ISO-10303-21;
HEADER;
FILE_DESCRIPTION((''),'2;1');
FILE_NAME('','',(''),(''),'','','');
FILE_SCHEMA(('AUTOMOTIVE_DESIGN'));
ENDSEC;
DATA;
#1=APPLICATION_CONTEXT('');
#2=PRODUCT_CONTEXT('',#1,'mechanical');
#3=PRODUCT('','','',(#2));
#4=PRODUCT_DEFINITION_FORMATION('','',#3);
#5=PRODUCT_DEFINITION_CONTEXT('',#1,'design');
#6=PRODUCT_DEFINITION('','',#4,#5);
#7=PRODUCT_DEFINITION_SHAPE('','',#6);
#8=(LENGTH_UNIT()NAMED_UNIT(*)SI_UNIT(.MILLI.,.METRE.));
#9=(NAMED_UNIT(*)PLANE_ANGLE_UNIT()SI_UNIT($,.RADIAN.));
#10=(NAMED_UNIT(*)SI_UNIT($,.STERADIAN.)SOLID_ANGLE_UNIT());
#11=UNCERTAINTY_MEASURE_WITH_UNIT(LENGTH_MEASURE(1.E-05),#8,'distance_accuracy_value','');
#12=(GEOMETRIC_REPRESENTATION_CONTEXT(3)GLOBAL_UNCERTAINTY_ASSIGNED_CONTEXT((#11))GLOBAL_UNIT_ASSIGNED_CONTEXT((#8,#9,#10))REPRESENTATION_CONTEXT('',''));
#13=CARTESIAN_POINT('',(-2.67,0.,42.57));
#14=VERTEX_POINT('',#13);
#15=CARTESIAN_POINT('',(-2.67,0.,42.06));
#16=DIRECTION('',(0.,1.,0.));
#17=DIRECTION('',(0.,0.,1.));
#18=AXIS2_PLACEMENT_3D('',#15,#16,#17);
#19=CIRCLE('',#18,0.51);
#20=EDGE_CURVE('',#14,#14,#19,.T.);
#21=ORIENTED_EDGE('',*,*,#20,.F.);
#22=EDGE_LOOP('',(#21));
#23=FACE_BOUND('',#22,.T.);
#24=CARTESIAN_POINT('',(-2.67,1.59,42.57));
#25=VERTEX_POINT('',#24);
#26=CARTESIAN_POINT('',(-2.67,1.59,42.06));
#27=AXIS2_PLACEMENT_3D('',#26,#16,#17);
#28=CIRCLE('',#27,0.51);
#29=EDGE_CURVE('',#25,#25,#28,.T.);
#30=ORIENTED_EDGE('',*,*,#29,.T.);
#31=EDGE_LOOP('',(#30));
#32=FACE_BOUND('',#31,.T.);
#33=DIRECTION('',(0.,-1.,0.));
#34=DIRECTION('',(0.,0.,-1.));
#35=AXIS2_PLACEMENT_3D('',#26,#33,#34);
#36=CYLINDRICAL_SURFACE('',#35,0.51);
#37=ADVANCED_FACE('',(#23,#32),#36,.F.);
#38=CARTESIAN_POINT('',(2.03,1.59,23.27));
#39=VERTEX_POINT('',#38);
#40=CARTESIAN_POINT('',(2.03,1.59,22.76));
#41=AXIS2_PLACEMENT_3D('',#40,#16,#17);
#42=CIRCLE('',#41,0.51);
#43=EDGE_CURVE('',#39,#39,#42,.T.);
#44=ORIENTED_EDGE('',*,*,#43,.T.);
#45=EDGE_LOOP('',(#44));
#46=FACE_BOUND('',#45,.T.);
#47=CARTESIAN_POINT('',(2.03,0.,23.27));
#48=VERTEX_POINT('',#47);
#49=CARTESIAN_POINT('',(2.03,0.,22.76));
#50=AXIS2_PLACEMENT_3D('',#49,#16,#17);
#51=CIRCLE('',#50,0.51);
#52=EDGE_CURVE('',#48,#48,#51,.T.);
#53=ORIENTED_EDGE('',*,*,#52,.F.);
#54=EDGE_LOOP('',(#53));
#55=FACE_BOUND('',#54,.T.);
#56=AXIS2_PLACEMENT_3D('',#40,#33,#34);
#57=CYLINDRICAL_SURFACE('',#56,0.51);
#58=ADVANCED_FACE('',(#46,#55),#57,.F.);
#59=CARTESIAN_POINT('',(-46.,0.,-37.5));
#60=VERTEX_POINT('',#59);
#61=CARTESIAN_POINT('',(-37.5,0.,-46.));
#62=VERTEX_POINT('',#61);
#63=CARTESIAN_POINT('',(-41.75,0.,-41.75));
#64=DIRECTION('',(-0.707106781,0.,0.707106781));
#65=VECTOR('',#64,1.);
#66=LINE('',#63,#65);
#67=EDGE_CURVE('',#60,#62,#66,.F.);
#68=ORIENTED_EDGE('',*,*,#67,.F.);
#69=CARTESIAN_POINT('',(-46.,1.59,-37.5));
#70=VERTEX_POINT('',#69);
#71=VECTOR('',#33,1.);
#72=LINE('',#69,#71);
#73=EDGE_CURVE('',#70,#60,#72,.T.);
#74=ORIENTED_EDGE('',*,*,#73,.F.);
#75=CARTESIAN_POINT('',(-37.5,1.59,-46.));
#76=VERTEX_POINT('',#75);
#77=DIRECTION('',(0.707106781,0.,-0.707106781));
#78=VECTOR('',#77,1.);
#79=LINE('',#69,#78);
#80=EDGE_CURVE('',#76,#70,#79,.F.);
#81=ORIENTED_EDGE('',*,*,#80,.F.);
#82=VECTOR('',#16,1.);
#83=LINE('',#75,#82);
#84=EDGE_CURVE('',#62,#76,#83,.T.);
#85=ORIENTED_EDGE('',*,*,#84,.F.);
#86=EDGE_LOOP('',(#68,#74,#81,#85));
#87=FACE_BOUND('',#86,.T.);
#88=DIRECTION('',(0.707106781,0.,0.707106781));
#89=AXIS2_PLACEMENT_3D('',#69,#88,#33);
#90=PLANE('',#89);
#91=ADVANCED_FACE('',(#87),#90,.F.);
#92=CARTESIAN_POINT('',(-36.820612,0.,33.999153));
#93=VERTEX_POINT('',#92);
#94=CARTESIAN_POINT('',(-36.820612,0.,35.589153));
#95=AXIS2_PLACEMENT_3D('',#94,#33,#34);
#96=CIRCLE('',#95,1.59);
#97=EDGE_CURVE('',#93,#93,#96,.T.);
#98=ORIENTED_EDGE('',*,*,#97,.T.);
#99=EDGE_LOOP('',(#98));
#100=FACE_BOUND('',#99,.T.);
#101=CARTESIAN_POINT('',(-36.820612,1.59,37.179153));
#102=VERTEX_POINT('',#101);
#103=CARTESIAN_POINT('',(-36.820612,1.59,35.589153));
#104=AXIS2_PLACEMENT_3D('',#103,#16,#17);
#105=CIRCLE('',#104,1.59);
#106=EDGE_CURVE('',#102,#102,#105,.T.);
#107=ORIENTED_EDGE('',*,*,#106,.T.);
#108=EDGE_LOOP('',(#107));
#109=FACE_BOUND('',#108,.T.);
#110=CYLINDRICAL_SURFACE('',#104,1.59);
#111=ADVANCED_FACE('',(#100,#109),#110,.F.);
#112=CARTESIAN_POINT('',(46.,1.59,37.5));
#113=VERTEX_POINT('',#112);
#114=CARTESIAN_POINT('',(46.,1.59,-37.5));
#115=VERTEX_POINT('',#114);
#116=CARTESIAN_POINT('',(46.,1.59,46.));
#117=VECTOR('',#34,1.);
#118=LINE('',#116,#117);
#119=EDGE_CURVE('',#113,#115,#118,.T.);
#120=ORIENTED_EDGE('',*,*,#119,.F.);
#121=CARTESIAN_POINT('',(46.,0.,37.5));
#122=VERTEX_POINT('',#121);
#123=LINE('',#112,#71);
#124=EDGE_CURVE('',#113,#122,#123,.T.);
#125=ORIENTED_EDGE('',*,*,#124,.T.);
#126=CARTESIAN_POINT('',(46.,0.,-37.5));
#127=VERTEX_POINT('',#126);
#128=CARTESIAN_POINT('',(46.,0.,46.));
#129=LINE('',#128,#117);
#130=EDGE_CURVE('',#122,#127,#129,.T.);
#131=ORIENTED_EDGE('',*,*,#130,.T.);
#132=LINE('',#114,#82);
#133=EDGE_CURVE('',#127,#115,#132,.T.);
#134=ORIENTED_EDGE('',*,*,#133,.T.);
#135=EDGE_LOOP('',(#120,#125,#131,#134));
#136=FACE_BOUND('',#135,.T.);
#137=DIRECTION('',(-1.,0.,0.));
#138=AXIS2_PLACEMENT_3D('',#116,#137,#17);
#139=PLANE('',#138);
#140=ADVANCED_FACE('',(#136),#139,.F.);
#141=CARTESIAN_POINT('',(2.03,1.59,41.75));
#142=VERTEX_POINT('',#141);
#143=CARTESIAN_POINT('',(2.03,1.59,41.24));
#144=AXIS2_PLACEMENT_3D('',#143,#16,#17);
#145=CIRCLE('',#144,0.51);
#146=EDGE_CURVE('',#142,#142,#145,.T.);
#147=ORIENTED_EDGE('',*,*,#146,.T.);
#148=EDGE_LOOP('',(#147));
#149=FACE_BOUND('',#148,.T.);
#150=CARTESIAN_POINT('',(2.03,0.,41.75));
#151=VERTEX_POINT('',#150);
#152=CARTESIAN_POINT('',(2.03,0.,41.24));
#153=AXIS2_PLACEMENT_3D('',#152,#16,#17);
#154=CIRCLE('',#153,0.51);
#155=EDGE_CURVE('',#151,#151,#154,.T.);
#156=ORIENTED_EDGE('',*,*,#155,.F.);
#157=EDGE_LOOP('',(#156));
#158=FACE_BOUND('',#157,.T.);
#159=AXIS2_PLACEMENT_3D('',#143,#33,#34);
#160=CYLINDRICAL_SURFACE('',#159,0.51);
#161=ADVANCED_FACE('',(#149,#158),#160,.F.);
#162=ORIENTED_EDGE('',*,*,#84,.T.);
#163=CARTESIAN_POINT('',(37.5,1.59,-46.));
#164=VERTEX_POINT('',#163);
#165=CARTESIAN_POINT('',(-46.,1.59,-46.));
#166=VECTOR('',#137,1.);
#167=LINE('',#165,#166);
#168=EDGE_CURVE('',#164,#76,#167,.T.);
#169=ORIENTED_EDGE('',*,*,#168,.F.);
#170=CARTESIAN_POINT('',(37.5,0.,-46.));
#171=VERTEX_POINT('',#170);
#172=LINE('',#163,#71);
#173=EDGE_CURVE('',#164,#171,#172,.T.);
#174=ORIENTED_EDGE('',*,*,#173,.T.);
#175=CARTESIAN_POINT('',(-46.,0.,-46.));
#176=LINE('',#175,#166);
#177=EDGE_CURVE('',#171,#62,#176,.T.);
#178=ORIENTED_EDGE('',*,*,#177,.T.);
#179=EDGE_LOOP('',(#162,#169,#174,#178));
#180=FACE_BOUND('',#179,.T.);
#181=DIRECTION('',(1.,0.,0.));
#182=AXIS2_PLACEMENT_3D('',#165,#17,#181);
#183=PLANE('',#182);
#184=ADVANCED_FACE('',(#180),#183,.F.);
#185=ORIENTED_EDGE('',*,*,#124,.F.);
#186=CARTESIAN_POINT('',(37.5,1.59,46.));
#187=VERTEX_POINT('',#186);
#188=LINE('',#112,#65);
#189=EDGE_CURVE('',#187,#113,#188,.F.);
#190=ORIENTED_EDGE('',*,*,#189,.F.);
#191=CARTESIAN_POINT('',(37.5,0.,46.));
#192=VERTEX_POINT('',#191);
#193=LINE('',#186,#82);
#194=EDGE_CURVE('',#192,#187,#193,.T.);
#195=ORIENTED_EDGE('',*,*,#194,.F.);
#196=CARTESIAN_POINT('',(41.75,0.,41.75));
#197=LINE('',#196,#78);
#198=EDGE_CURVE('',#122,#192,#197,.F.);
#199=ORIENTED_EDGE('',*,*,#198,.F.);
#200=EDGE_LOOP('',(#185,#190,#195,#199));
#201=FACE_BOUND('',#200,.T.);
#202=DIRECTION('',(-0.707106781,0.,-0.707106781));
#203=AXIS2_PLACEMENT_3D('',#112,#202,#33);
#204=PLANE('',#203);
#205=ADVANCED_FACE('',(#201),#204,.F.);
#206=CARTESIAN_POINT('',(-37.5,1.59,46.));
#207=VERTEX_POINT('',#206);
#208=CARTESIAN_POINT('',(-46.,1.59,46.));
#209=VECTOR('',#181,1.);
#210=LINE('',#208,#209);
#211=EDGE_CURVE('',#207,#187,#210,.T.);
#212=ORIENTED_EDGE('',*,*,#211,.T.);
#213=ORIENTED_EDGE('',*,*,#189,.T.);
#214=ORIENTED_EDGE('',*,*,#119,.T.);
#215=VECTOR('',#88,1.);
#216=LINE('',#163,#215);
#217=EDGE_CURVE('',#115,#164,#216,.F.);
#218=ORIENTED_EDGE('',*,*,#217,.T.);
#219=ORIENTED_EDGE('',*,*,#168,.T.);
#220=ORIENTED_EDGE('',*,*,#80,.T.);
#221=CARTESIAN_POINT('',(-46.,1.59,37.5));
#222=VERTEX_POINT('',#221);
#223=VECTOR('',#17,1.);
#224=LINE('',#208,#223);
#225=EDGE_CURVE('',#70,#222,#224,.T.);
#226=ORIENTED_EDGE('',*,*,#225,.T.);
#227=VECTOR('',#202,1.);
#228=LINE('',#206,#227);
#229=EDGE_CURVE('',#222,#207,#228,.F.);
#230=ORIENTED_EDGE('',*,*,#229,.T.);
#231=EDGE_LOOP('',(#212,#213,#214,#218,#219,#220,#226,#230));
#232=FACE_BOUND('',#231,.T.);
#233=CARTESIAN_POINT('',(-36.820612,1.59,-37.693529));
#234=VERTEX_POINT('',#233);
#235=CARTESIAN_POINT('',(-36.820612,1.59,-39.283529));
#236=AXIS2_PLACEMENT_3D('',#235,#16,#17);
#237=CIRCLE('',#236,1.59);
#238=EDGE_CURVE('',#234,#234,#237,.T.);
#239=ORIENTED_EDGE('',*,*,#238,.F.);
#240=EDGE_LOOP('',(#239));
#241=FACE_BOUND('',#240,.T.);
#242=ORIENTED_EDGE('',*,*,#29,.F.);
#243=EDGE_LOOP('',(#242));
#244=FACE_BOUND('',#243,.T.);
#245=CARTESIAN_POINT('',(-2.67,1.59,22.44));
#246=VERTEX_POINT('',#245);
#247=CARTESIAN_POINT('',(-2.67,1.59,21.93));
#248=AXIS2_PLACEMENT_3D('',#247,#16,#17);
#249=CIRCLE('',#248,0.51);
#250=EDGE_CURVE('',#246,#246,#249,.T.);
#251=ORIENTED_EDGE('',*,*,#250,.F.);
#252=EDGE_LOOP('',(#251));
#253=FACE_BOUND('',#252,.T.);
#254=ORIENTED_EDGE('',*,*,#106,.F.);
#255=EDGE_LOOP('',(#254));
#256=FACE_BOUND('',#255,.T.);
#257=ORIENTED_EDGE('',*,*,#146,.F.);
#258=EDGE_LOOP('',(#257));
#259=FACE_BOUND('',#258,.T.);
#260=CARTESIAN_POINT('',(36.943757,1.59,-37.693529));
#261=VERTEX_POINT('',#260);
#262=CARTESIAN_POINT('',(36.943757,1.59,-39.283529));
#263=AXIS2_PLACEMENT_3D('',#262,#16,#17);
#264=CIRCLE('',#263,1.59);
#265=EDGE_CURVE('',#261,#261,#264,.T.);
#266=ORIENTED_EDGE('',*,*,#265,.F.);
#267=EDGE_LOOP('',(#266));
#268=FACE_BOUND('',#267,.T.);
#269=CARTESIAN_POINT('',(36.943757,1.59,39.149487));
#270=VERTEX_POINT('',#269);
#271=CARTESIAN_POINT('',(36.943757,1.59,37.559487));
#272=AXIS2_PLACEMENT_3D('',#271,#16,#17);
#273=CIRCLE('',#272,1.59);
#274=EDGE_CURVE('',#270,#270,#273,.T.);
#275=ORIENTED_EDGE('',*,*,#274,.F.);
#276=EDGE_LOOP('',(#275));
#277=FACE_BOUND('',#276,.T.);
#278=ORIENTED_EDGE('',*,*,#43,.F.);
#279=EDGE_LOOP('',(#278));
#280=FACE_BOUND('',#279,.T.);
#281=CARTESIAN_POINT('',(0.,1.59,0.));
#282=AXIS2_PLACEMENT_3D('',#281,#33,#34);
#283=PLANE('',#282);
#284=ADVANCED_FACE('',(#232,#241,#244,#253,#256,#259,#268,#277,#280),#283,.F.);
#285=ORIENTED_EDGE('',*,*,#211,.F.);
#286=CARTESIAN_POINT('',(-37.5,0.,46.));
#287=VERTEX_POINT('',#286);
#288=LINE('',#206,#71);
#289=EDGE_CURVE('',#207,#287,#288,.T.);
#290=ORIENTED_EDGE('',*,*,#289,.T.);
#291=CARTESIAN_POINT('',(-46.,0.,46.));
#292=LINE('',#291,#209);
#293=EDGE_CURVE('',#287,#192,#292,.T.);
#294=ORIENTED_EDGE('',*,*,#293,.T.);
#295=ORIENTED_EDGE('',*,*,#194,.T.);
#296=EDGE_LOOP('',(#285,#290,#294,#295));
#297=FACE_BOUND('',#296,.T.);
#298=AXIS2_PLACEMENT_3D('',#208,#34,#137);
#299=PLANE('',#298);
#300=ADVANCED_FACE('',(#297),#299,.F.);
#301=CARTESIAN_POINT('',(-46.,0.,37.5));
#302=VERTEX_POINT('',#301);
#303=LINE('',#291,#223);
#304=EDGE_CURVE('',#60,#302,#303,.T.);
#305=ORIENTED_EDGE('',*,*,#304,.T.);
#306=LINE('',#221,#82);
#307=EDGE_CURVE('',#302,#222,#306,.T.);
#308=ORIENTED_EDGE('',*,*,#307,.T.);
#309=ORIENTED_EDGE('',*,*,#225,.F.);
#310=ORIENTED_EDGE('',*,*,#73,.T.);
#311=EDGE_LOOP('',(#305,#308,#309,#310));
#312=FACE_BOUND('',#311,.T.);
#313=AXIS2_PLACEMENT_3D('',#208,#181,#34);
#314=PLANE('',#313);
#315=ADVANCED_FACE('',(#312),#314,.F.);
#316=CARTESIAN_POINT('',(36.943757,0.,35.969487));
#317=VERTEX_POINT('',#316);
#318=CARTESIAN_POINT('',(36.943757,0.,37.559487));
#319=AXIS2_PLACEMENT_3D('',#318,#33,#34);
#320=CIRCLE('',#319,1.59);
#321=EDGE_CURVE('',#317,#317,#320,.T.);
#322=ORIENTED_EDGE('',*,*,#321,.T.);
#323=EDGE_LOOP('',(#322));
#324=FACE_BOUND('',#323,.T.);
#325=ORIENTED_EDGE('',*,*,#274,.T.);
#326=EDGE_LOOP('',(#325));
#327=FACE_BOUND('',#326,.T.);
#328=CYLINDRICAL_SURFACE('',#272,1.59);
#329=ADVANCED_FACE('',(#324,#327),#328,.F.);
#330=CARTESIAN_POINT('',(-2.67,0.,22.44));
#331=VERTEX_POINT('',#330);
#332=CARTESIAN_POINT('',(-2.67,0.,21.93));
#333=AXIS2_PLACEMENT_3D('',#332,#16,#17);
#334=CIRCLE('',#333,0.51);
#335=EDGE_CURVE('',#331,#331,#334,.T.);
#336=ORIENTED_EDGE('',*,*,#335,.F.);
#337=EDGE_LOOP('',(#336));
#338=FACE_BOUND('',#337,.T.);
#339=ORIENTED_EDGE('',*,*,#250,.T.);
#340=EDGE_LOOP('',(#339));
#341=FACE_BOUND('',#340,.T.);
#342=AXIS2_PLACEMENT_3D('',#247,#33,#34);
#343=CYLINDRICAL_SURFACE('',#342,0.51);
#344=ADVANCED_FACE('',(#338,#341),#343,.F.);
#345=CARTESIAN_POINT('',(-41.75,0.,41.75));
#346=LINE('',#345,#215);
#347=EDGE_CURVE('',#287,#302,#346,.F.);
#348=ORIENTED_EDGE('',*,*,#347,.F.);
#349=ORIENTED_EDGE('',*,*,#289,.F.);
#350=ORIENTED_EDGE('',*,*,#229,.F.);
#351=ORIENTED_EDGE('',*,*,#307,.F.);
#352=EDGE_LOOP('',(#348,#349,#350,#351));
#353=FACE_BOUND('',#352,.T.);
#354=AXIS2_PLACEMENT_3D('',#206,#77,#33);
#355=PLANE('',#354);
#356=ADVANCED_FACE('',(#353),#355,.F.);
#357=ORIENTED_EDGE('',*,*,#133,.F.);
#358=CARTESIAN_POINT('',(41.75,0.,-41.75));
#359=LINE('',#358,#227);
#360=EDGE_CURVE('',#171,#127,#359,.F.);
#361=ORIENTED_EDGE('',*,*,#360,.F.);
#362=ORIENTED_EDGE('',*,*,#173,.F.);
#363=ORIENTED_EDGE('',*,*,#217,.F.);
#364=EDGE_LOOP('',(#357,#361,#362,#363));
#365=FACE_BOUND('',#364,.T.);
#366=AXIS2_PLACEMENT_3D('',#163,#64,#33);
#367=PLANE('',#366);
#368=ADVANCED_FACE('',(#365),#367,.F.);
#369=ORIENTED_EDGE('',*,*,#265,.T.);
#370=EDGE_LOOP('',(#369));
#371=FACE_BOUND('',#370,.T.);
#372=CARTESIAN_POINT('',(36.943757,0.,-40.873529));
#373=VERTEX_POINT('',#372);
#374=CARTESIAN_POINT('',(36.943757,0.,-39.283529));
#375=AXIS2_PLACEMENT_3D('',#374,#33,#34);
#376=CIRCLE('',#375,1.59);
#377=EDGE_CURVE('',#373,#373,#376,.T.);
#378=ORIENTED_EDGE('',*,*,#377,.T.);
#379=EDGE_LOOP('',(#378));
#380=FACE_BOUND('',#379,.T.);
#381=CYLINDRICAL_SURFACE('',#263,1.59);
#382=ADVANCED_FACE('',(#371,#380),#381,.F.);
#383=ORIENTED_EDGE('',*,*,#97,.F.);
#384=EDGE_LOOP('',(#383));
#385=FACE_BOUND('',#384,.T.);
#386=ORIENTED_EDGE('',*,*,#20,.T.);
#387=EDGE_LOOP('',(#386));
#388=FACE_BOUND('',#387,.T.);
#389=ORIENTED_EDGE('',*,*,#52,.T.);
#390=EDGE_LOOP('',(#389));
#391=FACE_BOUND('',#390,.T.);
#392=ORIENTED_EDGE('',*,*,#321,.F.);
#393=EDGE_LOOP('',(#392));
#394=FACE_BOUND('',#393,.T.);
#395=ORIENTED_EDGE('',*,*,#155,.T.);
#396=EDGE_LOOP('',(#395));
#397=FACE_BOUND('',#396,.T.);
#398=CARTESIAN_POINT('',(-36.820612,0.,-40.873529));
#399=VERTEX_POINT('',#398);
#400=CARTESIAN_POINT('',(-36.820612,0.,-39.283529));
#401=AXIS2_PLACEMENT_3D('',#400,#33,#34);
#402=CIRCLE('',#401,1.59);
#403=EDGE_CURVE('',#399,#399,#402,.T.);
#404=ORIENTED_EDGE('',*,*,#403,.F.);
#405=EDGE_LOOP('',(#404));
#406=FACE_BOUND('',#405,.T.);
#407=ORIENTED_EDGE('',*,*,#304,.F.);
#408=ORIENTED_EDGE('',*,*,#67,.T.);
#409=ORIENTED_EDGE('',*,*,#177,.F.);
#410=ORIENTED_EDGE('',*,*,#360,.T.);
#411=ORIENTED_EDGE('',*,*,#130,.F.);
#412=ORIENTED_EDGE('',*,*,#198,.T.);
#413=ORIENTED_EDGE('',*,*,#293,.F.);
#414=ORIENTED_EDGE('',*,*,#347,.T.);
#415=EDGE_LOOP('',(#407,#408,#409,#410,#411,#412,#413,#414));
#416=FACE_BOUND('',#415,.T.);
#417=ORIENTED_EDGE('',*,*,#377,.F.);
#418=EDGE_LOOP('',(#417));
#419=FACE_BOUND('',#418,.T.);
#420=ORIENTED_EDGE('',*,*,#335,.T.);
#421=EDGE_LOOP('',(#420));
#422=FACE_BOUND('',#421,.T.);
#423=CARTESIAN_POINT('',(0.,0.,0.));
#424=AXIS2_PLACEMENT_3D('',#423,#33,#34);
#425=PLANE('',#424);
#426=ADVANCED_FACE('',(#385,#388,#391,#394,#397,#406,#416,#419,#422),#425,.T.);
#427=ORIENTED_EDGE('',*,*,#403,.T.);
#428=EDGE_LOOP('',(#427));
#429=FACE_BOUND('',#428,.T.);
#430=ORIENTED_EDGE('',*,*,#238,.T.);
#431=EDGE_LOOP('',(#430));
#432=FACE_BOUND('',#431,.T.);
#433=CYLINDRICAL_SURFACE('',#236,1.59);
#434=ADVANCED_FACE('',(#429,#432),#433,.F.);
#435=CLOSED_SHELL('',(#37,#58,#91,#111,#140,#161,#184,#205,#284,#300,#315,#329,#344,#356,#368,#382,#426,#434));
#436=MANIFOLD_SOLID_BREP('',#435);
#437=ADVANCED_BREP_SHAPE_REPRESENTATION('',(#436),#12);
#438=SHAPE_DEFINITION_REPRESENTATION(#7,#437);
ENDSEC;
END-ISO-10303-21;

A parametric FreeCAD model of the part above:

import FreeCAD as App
import Part
import Sketcher
Q = App.Units.Quantity


def edges_at(feature, points):
    """Names of the edges that pass closest to the given points."""
    edges = feature.Shape.Edges
    near = lambda p: min(range(len(edges)), key=lambda i: edges[i].distToShape(Part.Vertex(*p))[0])
    return sorted({f"Edge{near(p) + 1}" for p in points})

doc = App.newDocument("Part")
params = doc.addObject("Spreadsheet::Sheet", "Params")
for row, (alias, value) in enumerate([
    ("sketch1_diameter", "1.02 mm"),
    ("sketch1_width", "92 mm"),
    ("pad1_length", "1.59 mm"),
    ("chamfer_size", "8.5 mm"),
    ("sketch2_diameter", "3.18 mm"),
    ("hole_diameter", "3.18 mm"),
], start=1):
    params.set(f"A{row}", alias)
    params.set(f"B{row}", "=" + value)
    params.setAlias(f"B{row}", alias)

body = doc.addObject("PartDesign::Body", "Body")

# Sketch on XZ plane
sketch1 = doc.addObject("Sketcher::SketchObject", "Sketch")
body.addObject(sketch1)
sketch1.AttachmentSupport = (doc.XZ_Plane, [""])
sketch1.MapMode = "FlatFace"
sketch1.addGeometry(Part.LineSegment(App.Vector(-46, -46, 0), App.Vector(-46, 46, 0)), False)
sketch1.addGeometry(Part.LineSegment(App.Vector(-46, 46, 0), App.Vector(46, 46, 0)), False)
sketch1.addGeometry(Part.LineSegment(App.Vector(46, 46, 0), App.Vector(46, -46, 0)), False)
sketch1.addGeometry(Part.LineSegment(App.Vector(46, -46, 0), App.Vector(-46, -46, 0)), False)
sketch1.addGeometry(Part.Circle(App.Vector(-2.7, 42.1, 0), App.Vector(0, 0, 1), 0.5), False)
sketch1.addGeometry(Part.Circle(App.Vector(2, 41.2, 0), App.Vector(0, 0, 1), 0.5), False)
sketch1.addGeometry(Part.Circle(App.Vector(-2.7, 21.9, 0), App.Vector(0, 0, 1), 0.5), False)
sketch1.addGeometry(Part.Circle(App.Vector(2, 22.8, 0), App.Vector(0, 0, 1), 0.5), False)
sketch1.addConstraint(Sketcher.Constraint("Coincident", 0, 2, 1, 1))
sketch1.addConstraint(Sketcher.Constraint("Coincident", 1, 2, 2, 1))
sketch1.addConstraint(Sketcher.Constraint("Coincident", 2, 2, 3, 1))
sketch1.addConstraint(Sketcher.Constraint("Coincident", 3, 2, 0, 1))
sketch1.addConstraint(Sketcher.Constraint("Vertical", 0))
sketch1.addConstraint(Sketcher.Constraint("Horizontal", 1))
sketch1.addConstraint(Sketcher.Constraint("Vertical", 2))
sketch1.addConstraint(Sketcher.Constraint("Horizontal", 3))
sketch1.addConstraint(Sketcher.Constraint("Equal", 4, 5))
sketch1.addConstraint(Sketcher.Constraint("Equal", 5, 6))
sketch1.addConstraint(Sketcher.Constraint("Equal", 6, 7))
sketch1.addConstraint(Sketcher.Constraint("Symmetric", 0, 2, 2, 2, -1, 1))
sketch1.addConstraint(Sketcher.Constraint("Vertical", 4, 3, 6, 3))
sketch1.addConstraint(Sketcher.Constraint("Vertical", 5, 3, 7, 3))
sketch1.addConstraint(Sketcher.Constraint("Equal", 3, 0))
sketch1.addConstraint(Sketcher.Constraint("Diameter", 4, Q("1.02 mm")))
sketch1.addConstraint(Sketcher.Constraint("DistanceX", 1, 1, 1, 2, Q("92 mm")))
sketch1.addConstraint(Sketcher.Constraint("DistanceX", 4, 3, 5, 3, Q("4.7 mm")))
sketch1.addConstraint(Sketcher.Constraint("DistanceY", 7, 3, 4, 3, Q("19.3 mm")))
sketch1.addConstraint(Sketcher.Constraint("DistanceX", 4, 3, -1, 1, Q("2.67 mm")))
sketch1.addConstraint(Sketcher.Constraint("DistanceY", -1, 1, 4, 3, Q("42.06 mm")))
sketch1.addConstraint(Sketcher.Constraint("DistanceY", -1, 1, 5, 3, Q("41.24 mm")))
sketch1.addConstraint(Sketcher.Constraint("DistanceY", -1, 1, 6, 3, Q("21.93 mm")))
sketch1.setExpression("Constraints[15]", "Params.sketch1_diameter")
sketch1.setExpression("Constraints[16]", "Params.sketch1_width")
pad1 = doc.addObject("PartDesign::Pad", "Pad")
body.addObject(pad1)
pad1.Profile = sketch1
pad1.setExpression("Length", "Params.pad1_length")
pad1.Reversed = True
doc.recompute()

chamfer = doc.addObject("PartDesign::Chamfer", "Chamfer")
body.addObject(chamfer)
chamfer.Base = (pad1, edges_at(pad1, [
    (46, 0.795, 46),
    (-46, 0.795, 46),
    (-46, 0.795, -46),
    (46, 0.795, -46),
]))
chamfer.setExpression("Size", "Params.chamfer_size")

# Sketch on XZ plane
sketch2 = doc.addObject("Sketcher::SketchObject", "Sketch001")
body.addObject(sketch2)
sketch2.AttachmentSupport = (doc.XZ_Plane, [""])
sketch2.MapMode = "FlatFace"
sketch2.AttachmentOffset = App.Placement(App.Vector(0, 0, -1.59), App.Rotation())
sketch2.addGeometry(Part.Circle(App.Vector(-36.8, 35.6, 0), App.Vector(0, 0, 1), 1.6), False)
sketch2.addGeometry(Part.Circle(App.Vector(36.9, 37.6, 0), App.Vector(0, 0, 1), 1.6), False)
sketch2.addGeometry(Part.Circle(App.Vector(36.9, -39.3, 0), App.Vector(0, 0, 1), 1.6), False)
sketch2.addGeometry(Part.Circle(App.Vector(-36.8, -39.3, 0), App.Vector(0, 0, 1), 1.6), False)
sketch2.addConstraint(Sketcher.Constraint("Equal", 0, 1))
sketch2.addConstraint(Sketcher.Constraint("Equal", 1, 2))
sketch2.addConstraint(Sketcher.Constraint("Equal", 2, 3))
sketch2.addConstraint(Sketcher.Constraint("Horizontal", 2, 3, 3, 3))
sketch2.addConstraint(Sketcher.Constraint("Vertical", 1, 3, 2, 3))
sketch2.addConstraint(Sketcher.Constraint("Vertical", 0, 3, 3, 3))
sketch2.addConstraint(Sketcher.Constraint("Diameter", 0, Q("3.18 mm")))
sketch2.addConstraint(Sketcher.Constraint("DistanceX", 0, 3, -1, 1, Q("36.820612 mm")))
sketch2.addConstraint(Sketcher.Constraint("DistanceY", 2, 3, -1, 1, Q("39.283529 mm")))
sketch2.addConstraint(Sketcher.Constraint("DistanceX", 0, 3, 1, 3, Q("73.764369 mm")))
sketch2.addConstraint(Sketcher.Constraint("DistanceY", 2, 3, 0, 3, Q("74.872682 mm")))
sketch2.addConstraint(Sketcher.Constraint("DistanceY", -1, 1, 1, 3, Q("37.559487 mm")))
sketch2.setExpression("Constraints[6]", "Params.sketch2_diameter")
doc.recompute()
hole = doc.addObject("PartDesign::Hole", "Hole")
body.addObject(hole)
hole.Profile = sketch2
hole.ThreadType = "None"
hole.setExpression("Diameter", "Params.hole_diameter")
hole.DepthType = "ThroughAll"
hole.Reversed = True

doc.recompute()
